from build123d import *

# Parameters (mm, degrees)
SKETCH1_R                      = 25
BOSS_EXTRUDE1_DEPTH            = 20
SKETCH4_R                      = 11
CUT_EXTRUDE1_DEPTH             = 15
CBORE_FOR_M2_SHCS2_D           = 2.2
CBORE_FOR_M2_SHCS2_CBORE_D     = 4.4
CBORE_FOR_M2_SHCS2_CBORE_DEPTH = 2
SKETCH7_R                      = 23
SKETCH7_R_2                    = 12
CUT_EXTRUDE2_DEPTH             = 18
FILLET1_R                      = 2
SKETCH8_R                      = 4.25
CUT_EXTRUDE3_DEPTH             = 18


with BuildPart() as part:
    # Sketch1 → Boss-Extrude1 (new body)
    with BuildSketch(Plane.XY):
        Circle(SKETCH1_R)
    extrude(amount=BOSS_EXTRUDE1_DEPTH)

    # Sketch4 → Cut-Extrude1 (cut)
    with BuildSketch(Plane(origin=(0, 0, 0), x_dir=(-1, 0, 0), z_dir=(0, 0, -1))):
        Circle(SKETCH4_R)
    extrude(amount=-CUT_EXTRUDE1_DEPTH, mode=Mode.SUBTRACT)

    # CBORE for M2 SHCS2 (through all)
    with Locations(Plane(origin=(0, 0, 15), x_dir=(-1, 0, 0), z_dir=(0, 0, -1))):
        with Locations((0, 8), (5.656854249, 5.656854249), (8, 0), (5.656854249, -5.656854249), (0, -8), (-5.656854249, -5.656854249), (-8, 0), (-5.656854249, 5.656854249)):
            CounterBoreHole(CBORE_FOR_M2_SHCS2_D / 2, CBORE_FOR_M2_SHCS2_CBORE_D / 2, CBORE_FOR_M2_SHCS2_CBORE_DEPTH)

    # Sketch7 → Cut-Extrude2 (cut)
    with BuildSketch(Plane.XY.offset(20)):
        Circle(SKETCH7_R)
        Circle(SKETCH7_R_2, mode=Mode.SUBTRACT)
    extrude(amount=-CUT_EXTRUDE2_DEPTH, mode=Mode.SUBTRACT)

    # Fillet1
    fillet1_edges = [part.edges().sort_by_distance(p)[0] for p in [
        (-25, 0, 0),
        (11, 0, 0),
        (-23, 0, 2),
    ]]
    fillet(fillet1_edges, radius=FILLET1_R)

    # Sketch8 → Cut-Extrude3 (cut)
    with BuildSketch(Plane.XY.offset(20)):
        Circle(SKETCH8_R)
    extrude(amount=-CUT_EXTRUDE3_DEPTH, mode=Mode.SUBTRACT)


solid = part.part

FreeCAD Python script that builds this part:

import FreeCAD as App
import Part
import Sketcher
from FreeCAD import Vector


def edges_at(feature, points):
    """Names of the edges that pass closest to the given points."""
    edges = feature.Shape.Edges
    near = lambda p: min(range(len(edges)), key=lambda i: edges[i].distToShape(Part.Vertex(*p))[0])
    return sorted({f"Edge{near(p) + 1}" for p in points})

doc = App.newDocument("Part")
body = doc.addObject("PartDesign::Body", "Body")

# Sketch on XY plane
sketch1 = body.newObject("Sketcher::SketchObject", "Sketch")
sketch1.AttachmentSupport = (doc.getObject("XY_Plane"), [""])
sketch1.MapMode = "FlatFace"
sketch1.addGeometry(Part.Circle(Vector(0, 0, 0), Vector(0, 0, 1), 25), False)
sketch1.addConstraint(Sketcher.Constraint("Coincident", 0, 3, -1, 1))
sketch1.addConstraint(Sketcher.Constraint("Diameter", 0, 50.0))
pad1 = body.newObject("PartDesign::Pad", "Pad")
pad1.Profile = sketch1
pad1.Length = 20

# Sketch on XY plane
sketch2 = body.newObject("Sketcher::SketchObject", "Sketch001")
sketch2.AttachmentSupport = (doc.getObject("XY_Plane"), [""])
sketch2.MapMode = "FlatFace"
sketch2.addGeometry(Part.Circle(Vector(0, 0, 0), Vector(0, 0, 1), 11), False)
sketch2.addConstraint(Sketcher.Constraint("Coincident", 0, 3, -1, 1))
sketch2.addConstraint(Sketcher.Constraint("Diameter", 0, 22.0))
pocket1 = body.newObject("PartDesign::Pocket", "Pocket")
pocket1.Profile = sketch2
pocket1.Length = 15
pocket1.Reversed = True

# Sketch on XY plane
sketch3 = body.newObject("Sketcher::SketchObject", "Sketch002")
sketch3.AttachmentSupport = (doc.getObject("XY_Plane"), [""])
sketch3.MapMode = "FlatFace"
sketch3.AttachmentOffset = App.Placement(Vector(0, 0, 15), App.Rotation())
sketch3.addGeometry(Part.Circle(Vector(0, 8, 0), Vector(0, 0, 1), 1.1), False)
sketch3.addGeometry(Part.Circle(Vector(-5.7, 5.7, 0), Vector(0, 0, 1), 1.1), False)
sketch3.addGeometry(Part.Circle(Vector(-8, 0, 0), Vector(0, 0, 1), 1.1), False)
sketch3.addGeometry(Part.Circle(Vector(-5.7, -5.7, 0), Vector(0, 0, 1), 1.1), False)
sketch3.addGeometry(Part.Circle(Vector(0, -8, 0), Vector(0, 0, 1), 1.1), False)
sketch3.addGeometry(Part.Circle(Vector(5.7, -5.7, 0), Vector(0, 0, 1), 1.1), False)
sketch3.addGeometry(Part.Circle(Vector(8, 0, 0), Vector(0, 0, 1), 1.1), False)
sketch3.addGeometry(Part.Circle(Vector(5.7, 5.7, 0), Vector(0, 0, 1), 1.1), False)
sketch3.addConstraint(Sketcher.Constraint("Equal", 0, 1))
sketch3.addConstraint(Sketcher.Constraint("Equal", 1, 2))
sketch3.addConstraint(Sketcher.Constraint("Equal", 2, 3))
sketch3.addConstraint(Sketcher.Constraint("Equal", 3, 4))
sketch3.addConstraint(Sketcher.Constraint("Equal", 4, 5))
sketch3.addConstraint(Sketcher.Constraint("Equal", 5, 6))
sketch3.addConstraint(Sketcher.Constraint("Equal", 6, 7))
sketch3.addConstraint(Sketcher.Constraint("Symmetric", 0, 3, 4, 3, -1, 1))
sketch3.addConstraint(Sketcher.Constraint("Symmetric", 1, 3, 5, 3, -1, 1))
sketch3.addConstraint(Sketcher.Constraint("Symmetric", 2, 3, 6, 3, -1, 1))
sketch3.addConstraint(Sketcher.Constraint("Symmetric", 3, 3, 7, 3, -1, 1))
sketch3.addConstraint(Sketcher.Constraint("Symmetric", 3, 3, 5, 3, -2))
sketch3.addConstraint(Sketcher.Constraint("PointOnObject", 0, 3, -2))
sketch3.addConstraint(Sketcher.Constraint("PointOnObject", 2, 3, -1))
sketch3.addConstraint(Sketcher.Constraint("Diameter", 0, 2.2))
sketch3.addConstraint(Sketcher.Constraint("DistanceY", -1, 1, 0, 3, 8.0))
sketch3.addConstraint(Sketcher.Constraint("DistanceX", 2, 3, -1, 1, 8.0))
sketch3.addConstraint(Sketcher.Constraint("DistanceY", 3, 3, 1, 3, 11.313708))
sketch3.addConstraint(Sketcher.Constraint("DistanceX", 3, 3, 5, 3, 11.313708))
doc.recompute()
hole = body.newObject("PartDesign::Hole", "Hole")
hole.Profile = sketch3
hole.ThreadType = "None"
hole.Diameter = 2.2
hole.DepthType = "ThroughAll"
hole.HoleCutType = "Counterbore"
hole.HoleCutDiameter = 4.4
hole.HoleCutDepth = 2
hole.Reversed = True

# Sketch on XY plane
sketch4 = body.newObject("Sketcher::SketchObject", "Sketch003")
sketch4.AttachmentSupport = (doc.getObject("XY_Plane"), [""])
sketch4.MapMode = "FlatFace"
sketch4.AttachmentOffset = App.Placement(Vector(0, 0, 20), App.Rotation())
sketch4.addGeometry(Part.Circle(Vector(0, 0, 0), Vector(0, 0, 1), 23), False)
sketch4.addGeometry(Part.Circle(Vector(0, 0, 0), Vector(0, 0, 1), 12), False)
sketch4.addConstraint(Sketcher.Constraint("Coincident", 0, 3, -1, 1))
sketch4.addConstraint(Sketcher.Constraint("Coincident", 1, 3, -1, 1))
sketch4.addConstraint(Sketcher.Constraint("Diameter", 0, 46.0))
sketch4.addConstraint(Sketcher.Constraint("Diameter", 1, 24.0))
pocket2 = body.newObject("PartDesign::Pocket", "Pocket001")
pocket2.Profile = sketch4
pocket2.Length = 18
doc.recompute()

fillet = body.newObject("PartDesign::Fillet", "Fillet")
fillet.Base = (pocket2, edges_at(pocket2, [(-25, 0, 0), (11, 0, 0), (-23, 0, 2)]))
fillet.Radius = 2

# Sketch on XY plane
sketch5 = body.newObject("Sketcher::SketchObject", "Sketch004")
sketch5.AttachmentSupport = (doc.getObject("XY_Plane"), [""])
sketch5.MapMode = "FlatFace"
sketch5.AttachmentOffset = App.Placement(Vector(0, 0, 20), App.Rotation())
sketch5.addGeometry(Part.Circle(Vector(0, 0, 0), Vector(0, 0, 1), 4.2), False)
sketch5.addConstraint(Sketcher.Constraint("Coincident", 0, 3, -1, 1))
sketch5.addConstraint(Sketcher.Constraint("Diameter", 0, 8.5))
pocket3 = body.newObject("PartDesign::Pocket", "Pocket002")
pocket3.Profile = sketch5
pocket3.Length = 18

doc.recompute()
